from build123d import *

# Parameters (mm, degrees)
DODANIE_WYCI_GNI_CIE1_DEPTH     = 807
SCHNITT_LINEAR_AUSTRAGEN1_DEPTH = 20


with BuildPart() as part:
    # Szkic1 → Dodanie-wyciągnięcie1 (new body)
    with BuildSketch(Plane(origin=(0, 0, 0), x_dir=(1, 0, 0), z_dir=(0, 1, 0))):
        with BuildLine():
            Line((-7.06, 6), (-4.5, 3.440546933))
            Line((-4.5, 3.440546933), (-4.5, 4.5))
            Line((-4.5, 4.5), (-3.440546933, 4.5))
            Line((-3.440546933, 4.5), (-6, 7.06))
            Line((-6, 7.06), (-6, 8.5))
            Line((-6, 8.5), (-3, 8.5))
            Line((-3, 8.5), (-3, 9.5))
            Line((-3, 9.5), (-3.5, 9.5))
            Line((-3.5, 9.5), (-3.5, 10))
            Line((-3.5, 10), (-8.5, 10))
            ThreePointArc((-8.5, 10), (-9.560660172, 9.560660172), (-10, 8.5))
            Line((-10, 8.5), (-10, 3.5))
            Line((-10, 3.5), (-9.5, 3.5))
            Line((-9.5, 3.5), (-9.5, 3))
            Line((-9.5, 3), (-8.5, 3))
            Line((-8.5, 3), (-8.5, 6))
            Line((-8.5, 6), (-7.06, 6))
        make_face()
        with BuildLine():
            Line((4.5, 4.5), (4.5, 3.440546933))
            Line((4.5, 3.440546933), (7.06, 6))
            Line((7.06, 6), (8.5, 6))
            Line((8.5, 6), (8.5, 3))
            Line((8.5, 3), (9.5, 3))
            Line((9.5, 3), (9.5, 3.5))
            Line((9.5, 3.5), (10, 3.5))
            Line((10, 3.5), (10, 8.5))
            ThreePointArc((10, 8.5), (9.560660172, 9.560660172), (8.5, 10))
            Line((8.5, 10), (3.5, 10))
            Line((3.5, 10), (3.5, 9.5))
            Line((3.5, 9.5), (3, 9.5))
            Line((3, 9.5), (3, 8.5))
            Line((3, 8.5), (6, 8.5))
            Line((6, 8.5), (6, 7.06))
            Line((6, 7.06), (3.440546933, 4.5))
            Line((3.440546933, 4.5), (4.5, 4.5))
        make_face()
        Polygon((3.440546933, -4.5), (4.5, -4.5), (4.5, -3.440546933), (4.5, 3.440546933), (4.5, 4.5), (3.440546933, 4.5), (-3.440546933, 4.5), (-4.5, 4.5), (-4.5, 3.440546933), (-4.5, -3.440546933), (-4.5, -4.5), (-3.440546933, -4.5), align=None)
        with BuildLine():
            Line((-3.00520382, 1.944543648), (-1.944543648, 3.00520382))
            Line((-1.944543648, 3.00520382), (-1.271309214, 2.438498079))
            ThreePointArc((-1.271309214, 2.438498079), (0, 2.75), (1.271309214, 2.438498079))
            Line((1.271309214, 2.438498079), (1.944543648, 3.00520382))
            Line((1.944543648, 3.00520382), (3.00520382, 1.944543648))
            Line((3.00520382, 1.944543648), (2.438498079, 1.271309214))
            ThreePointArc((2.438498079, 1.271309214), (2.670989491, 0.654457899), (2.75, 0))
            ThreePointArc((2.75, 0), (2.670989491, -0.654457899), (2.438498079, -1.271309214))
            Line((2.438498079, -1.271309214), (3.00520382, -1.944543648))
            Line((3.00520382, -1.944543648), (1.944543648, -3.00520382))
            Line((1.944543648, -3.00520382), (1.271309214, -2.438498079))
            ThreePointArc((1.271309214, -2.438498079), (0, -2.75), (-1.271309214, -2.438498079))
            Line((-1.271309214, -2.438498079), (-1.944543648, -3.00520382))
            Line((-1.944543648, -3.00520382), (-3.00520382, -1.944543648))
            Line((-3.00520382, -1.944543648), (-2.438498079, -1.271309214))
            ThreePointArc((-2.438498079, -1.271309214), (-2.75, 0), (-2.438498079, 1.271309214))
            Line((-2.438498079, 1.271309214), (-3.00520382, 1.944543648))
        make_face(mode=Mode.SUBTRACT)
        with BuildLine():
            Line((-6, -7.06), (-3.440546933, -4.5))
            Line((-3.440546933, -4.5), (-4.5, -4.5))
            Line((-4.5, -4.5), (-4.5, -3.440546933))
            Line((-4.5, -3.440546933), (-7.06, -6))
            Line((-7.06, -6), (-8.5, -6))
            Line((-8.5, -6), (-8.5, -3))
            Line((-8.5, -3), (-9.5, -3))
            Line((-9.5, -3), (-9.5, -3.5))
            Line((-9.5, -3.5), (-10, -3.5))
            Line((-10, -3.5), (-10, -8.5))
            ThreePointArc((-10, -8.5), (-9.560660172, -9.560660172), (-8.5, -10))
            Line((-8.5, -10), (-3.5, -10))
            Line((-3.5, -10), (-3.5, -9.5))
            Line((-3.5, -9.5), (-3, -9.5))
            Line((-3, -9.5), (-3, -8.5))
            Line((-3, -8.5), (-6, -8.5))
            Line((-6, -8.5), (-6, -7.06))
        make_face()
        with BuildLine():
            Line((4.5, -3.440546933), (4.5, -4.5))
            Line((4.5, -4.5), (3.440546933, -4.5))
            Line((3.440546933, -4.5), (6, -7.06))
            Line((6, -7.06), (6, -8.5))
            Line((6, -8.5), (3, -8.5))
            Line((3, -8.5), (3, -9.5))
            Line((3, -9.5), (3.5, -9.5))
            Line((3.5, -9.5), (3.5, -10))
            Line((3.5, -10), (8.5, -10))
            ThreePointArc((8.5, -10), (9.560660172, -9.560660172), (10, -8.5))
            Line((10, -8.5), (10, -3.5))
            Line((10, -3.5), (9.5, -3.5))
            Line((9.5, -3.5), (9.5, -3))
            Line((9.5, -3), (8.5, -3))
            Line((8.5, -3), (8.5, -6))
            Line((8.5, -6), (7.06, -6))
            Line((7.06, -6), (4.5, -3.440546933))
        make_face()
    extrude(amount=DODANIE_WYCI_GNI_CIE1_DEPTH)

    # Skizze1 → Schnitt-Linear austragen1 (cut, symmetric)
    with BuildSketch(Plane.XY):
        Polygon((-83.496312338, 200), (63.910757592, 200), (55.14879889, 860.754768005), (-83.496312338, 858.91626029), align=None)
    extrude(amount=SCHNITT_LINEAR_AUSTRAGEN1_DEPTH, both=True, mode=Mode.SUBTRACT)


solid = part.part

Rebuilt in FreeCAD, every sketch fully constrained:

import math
import FreeCAD as App
import Part
import Sketcher
Q = App.Units.Quantity

doc = App.newDocument("Part")
body = doc.addObject("PartDesign::Body", "Body")

sketch1 = body.newObject("Sketcher::SketchObject", "Sketch")
sketch1.AttachmentSupport = (doc.getObject("XZ_Plane"), [""])
sketch1.MapMode = "FlatFace"
sketch1.addGeometry([
    Part.LineSegment(App.Vector(-7.1, -6, 0), App.Vector(-4.5, -3.4, 0)),
    Part.LineSegment(App.Vector(-4.5, -3.4, 0), App.Vector(-4.5, 3.4, 0)),
    Part.LineSegment(App.Vector(-4.5, 3.4, 0), App.Vector(-7.1, 6, 0)),
    Part.LineSegment(App.Vector(-7.1, 6, 0), App.Vector(-8.5, 6, 0)),
    Part.LineSegment(App.Vector(-8.5, 6, 0), App.Vector(-8.5, 3, 0)),
    Part.LineSegment(App.Vector(-8.5, 3, 0), App.Vector(-9.5, 3, 0)),
    Part.LineSegment(App.Vector(-9.5, 3, 0), App.Vector(-9.5, 3.5, 0)),
    Part.LineSegment(App.Vector(-9.5, 3.5, 0), App.Vector(-10, 3.5, 0)),
    Part.LineSegment(App.Vector(-10, 3.5, 0), App.Vector(-10, 8.5, 0)),
    Part.ArcOfCircle(Part.Circle(App.Vector(-8.5, 8.5, 0), App.Vector(0, 0, 1), 1.5), math.radians(90), math.radians(180)),
    Part.LineSegment(App.Vector(-8.5, 10, 0), App.Vector(-3.5, 10, 0)),
    Part.LineSegment(App.Vector(-3.5, 10, 0), App.Vector(-3.5, 9.5, 0)),
    Part.LineSegment(App.Vector(-3.5, 9.5, 0), App.Vector(-3, 9.5, 0)),
    Part.LineSegment(App.Vector(-3, 9.5, 0), App.Vector(-3, 8.5, 0)),
    Part.LineSegment(App.Vector(-3, 8.5, 0), App.Vector(-6, 8.5, 0)),
    Part.LineSegment(App.Vector(-6, 8.5, 0), App.Vector(-6, 7.1, 0)),
    Part.LineSegment(App.Vector(-6, 7.1, 0), App.Vector(-3.4, 4.5, 0)),
    Part.LineSegment(App.Vector(-3.4, 4.5, 0), App.Vector(3.4, 4.5, 0)),
    Part.LineSegment(App.Vector(3.4, 4.5, 0), App.Vector(6, 7.1, 0)),
    Part.LineSegment(App.Vector(6, 7.1, 0), App.Vector(6, 8.5, 0)),
    Part.LineSegment(App.Vector(6, 8.5, 0), App.Vector(3, 8.5, 0)),
    Part.LineSegment(App.Vector(3, 8.5, 0), App.Vector(3, 9.5, 0)),
    Part.LineSegment(App.Vector(3, 9.5, 0), App.Vector(3.5, 9.5, 0)),
    Part.LineSegment(App.Vector(3.5, 9.5, 0), App.Vector(3.5, 10, 0)),
    Part.LineSegment(App.Vector(3.5, 10, 0), App.Vector(8.5, 10, 0)),
    Part.ArcOfCircle(Part.Circle(App.Vector(8.5, 8.5, 0), App.Vector(0, 0, 1), 1.5), math.radians(0), math.radians(90)),
    Part.LineSegment(App.Vector(10, 8.5, 0), App.Vector(10, 3.5, 0)),
    Part.LineSegment(App.Vector(10, 3.5, 0), App.Vector(9.5, 3.5, 0)),
    Part.LineSegment(App.Vector(9.5, 3.5, 0), App.Vector(9.5, 3, 0)),
    Part.LineSegment(App.Vector(9.5, 3, 0), App.Vector(8.5, 3, 0)),
    Part.LineSegment(App.Vector(8.5, 3, 0), App.Vector(8.5, 6, 0)),
    Part.LineSegment(App.Vector(8.5, 6, 0), App.Vector(7.1, 6, 0)),
    Part.LineSegment(App.Vector(7.1, 6, 0), App.Vector(4.5, 3.4, 0)),
    Part.LineSegment(App.Vector(4.5, 3.4, 0), App.Vector(4.5, -3.4, 0)),
    Part.LineSegment(App.Vector(4.5, -3.4, 0), App.Vector(7.1, -6, 0)),
    Part.LineSegment(App.Vector(7.1, -6, 0), App.Vector(8.5, -6, 0)),
    Part.LineSegment(App.Vector(8.5, -6, 0), App.Vector(8.5, -3, 0)),
    Part.LineSegment(App.Vector(8.5, -3, 0), App.Vector(9.5, -3, 0)),
    Part.LineSegment(App.Vector(9.5, -3, 0), App.Vector(9.5, -3.5, 0)),
    Part.LineSegment(App.Vector(9.5, -3.5, 0), App.Vector(10, -3.5, 0)),
    Part.LineSegment(App.Vector(10, -3.5, 0), App.Vector(10, -8.5, 0)),
    Part.ArcOfCircle(Part.Circle(App.Vector(8.5, -8.5, 0), App.Vector(0, 0, 1), 1.5), math.radians(-90), math.radians(0)),
    Part.LineSegment(App.Vector(8.5, -10, 0), App.Vector(3.5, -10, 0)),
    Part.LineSegment(App.Vector(3.5, -10, 0), App.Vector(3.5, -9.5, 0)),
    Part.LineSegment(App.Vector(3.5, -9.5, 0), App.Vector(3, -9.5, 0)),
    Part.LineSegment(App.Vector(3, -9.5, 0), App.Vector(3, -8.5, 0)),
    Part.LineSegment(App.Vector(3, -8.5, 0), App.Vector(6, -8.5, 0)),
    Part.LineSegment(App.Vector(6, -8.5, 0), App.Vector(6, -7.1, 0)),
    Part.LineSegment(App.Vector(6, -7.1, 0), App.Vector(3.4, -4.5, 0)),
    Part.LineSegment(App.Vector(3.4, -4.5, 0), App.Vector(-3.4, -4.5, 0)),
    Part.LineSegment(App.Vector(-3.4, -4.5, 0), App.Vector(-6, -7.1, 0)),
    Part.LineSegment(App.Vector(-6, -7.1, 0), App.Vector(-6, -8.5, 0)),
    Part.LineSegment(App.Vector(-6, -8.5, 0), App.Vector(-3, -8.5, 0)),
    Part.LineSegment(App.Vector(-3, -8.5, 0), App.Vector(-3, -9.5, 0)),
    Part.LineSegment(App.Vector(-3, -9.5, 0), App.Vector(-3.5, -9.5, 0)),
    Part.LineSegment(App.Vector(-3.5, -9.5, 0), App.Vector(-3.5, -10, 0)),
    Part.LineSegment(App.Vector(-3.5, -10, 0), App.Vector(-8.5, -10, 0)),
    Part.ArcOfCircle(Part.Circle(App.Vector(-8.5, -8.5, 0), App.Vector(0, 0, 1), 1.5), math.radians(180), math.radians(270)),
    Part.LineSegment(App.Vector(-10, -8.5, 0), App.Vector(-10, -3.5, 0)),
    Part.LineSegment(App.Vector(-10, -3.5, 0), App.Vector(-9.5, -3.5, 0)),
    Part.LineSegment(App.Vector(-9.5, -3.5, 0), App.Vector(-9.5, -3, 0)),
    Part.LineSegment(App.Vector(-9.5, -3, 0), App.Vector(-8.5, -3, 0)),
    Part.LineSegment(App.Vector(-8.5, -3, 0), App.Vector(-8.5, -6, 0)),
    Part.LineSegment(App.Vector(-8.5, -6, 0), App.Vector(-7.1, -6, 0)),
    Part.LineSegment(App.Vector(-2.4, -1.3, 0), App.Vector(-3, -1.9, 0)),
    Part.LineSegment(App.Vector(-3, -1.9, 0), App.Vector(-1.9, -3, 0)),
    Part.LineSegment(App.Vector(-1.9, -3, 0), App.Vector(-1.3, -2.4, 0)),
    Part.ArcOfCircle(Part.Circle(App.Vector(0, 0, 0), App.Vector(0, 0, 1), 2.7), math.radians(-118), math.radians(-62)),
    Part.LineSegment(App.Vector(1.3, -2.4, 0), App.Vector(1.9, -3, 0)),
    Part.LineSegment(App.Vector(1.9, -3, 0), App.Vector(3, -1.9, 0)),
    Part.LineSegment(App.Vector(3, -1.9, 0), App.Vector(2.4, -1.3, 0)),
    Part.ArcOfCircle(Part.Circle(App.Vector(0, 0, 0), App.Vector(0, 0, 1), 2.7), math.radians(-28), math.radians(0)),
    Part.ArcOfCircle(Part.Circle(App.Vector(0, 0, 0), App.Vector(0, 0, 1), 2.7), math.radians(0), math.radians(28)),
    Part.LineSegment(App.Vector(2.4, 1.3, 0), App.Vector(3, 1.9, 0)),
    Part.LineSegment(App.Vector(3, 1.9, 0), App.Vector(1.9, 3, 0)),
    Part.LineSegment(App.Vector(1.9, 3, 0), App.Vector(1.3, 2.4, 0)),
    Part.ArcOfCircle(Part.Circle(App.Vector(0, 0, 0), App.Vector(0, 0, 1), 2.7), math.radians(62), math.radians(118)),
    Part.LineSegment(App.Vector(-1.3, 2.4, 0), App.Vector(-1.9, 3, 0)),
    Part.LineSegment(App.Vector(-1.9, 3, 0), App.Vector(-3, 1.9, 0)),
    Part.LineSegment(App.Vector(-3, 1.9, 0), App.Vector(-2.4, 1.3, 0)),
    Part.ArcOfCircle(Part.Circle(App.Vector(0, 0, 0), App.Vector(0, 0, 1), 2.7), math.radians(152), math.radians(208)),
], False)
sketch1.addConstraint([
    Sketcher.Constraint("Coincident", 0, 2, 1, 1),
    Sketcher.Constraint("Coincident", 1, 2, 2, 1),
    Sketcher.Constraint("Coincident", 2, 2, 3, 1),
    Sketcher.Constraint("Coincident", 3, 2, 4, 1),
    Sketcher.Constraint("Coincident", 4, 2, 5, 1),
    Sketcher.Constraint("Coincident", 5, 2, 6, 1),
    Sketcher.Constraint("Coincident", 6, 2, 7, 1),
    Sketcher.Constraint("Coincident", 7, 2, 8, 1),
    Sketcher.Constraint("Tangent", 8, 2, 9, 2),
    Sketcher.Constraint("Tangent", 9, 1, 10, 1),
    Sketcher.Constraint("Coincident", 10, 2, 11, 1),
    Sketcher.Constraint("Coincident", 11, 2, 12, 1),
    Sketcher.Constraint("Coincident", 12, 2, 13, 1),
    Sketcher.Constraint("Coincident", 13, 2, 14, 1),
    Sketcher.Constraint("Coincident", 14, 2, 15, 1),
    Sketcher.Constraint("Coincident", 15, 2, 16, 1),
    Sketcher.Constraint("Coincident", 16, 2, 17, 1),
    Sketcher.Constraint("Coincident", 17, 2, 18, 1),
    Sketcher.Constraint("Coincident", 18, 2, 19, 1),
    Sketcher.Constraint("Coincident", 19, 2, 20, 1),
    Sketcher.Constraint("Coincident", 20, 2, 21, 1),
    Sketcher.Constraint("Coincident", 21, 2, 22, 1),
    Sketcher.Constraint("Coincident", 22, 2, 23, 1),
    Sketcher.Constraint("Coincident", 23, 2, 24, 1),
    Sketcher.Constraint("Tangent", 24, 2, 25, 2),
    Sketcher.Constraint("Tangent", 25, 1, 26, 1),
    Sketcher.Constraint("Coincident", 26, 2, 27, 1),
    Sketcher.Constraint("Coincident", 27, 2, 28, 1),
    Sketcher.Constraint("Coincident", 28, 2, 29, 1),
    Sketcher.Constraint("Coincident", 29, 2, 30, 1),
    Sketcher.Constraint("Coincident", 30, 2, 31, 1),
    Sketcher.Constraint("Coincident", 31, 2, 32, 1),
    Sketcher.Constraint("Coincident", 32, 2, 33, 1),
    Sketcher.Constraint("Coincident", 33, 2, 34, 1),
    Sketcher.Constraint("Coincident", 34, 2, 35, 1),
    Sketcher.Constraint("Coincident", 35, 2, 36, 1),
    Sketcher.Constraint("Coincident", 36, 2, 37, 1),
    Sketcher.Constraint("Coincident", 37, 2, 38, 1),
    Sketcher.Constraint("Coincident", 38, 2, 39, 1),
    Sketcher.Constraint("Coincident", 39, 2, 40, 1),
    Sketcher.Constraint("Tangent", 40, 2, 41, 2),
    Sketcher.Constraint("Tangent", 41, 1, 42, 1),
    Sketcher.Constraint("Coincident", 42, 2, 43, 1),
    Sketcher.Constraint("Coincident", 43, 2, 44, 1),
    Sketcher.Constraint("Coincident", 44, 2, 45, 1),
    Sketcher.Constraint("Coincident", 45, 2, 46, 1),
    Sketcher.Constraint("Coincident", 46, 2, 47, 1),
    Sketcher.Constraint("Coincident", 47, 2, 48, 1),
    Sketcher.Constraint("Coincident", 48, 2, 49, 1),
    Sketcher.Constraint("Coincident", 49, 2, 50, 1),
    Sketcher.Constraint("Coincident", 50, 2, 51, 1),
    Sketcher.Constraint("Coincident", 51, 2, 52, 1),
    Sketcher.Constraint("Coincident", 52, 2, 53, 1),
    Sketcher.Constraint("Coincident", 53, 2, 54, 1),
    Sketcher.Constraint("Coincident", 54, 2, 55, 1),
    Sketcher.Constraint("Coincident", 55, 2, 56, 1),
    Sketcher.Constraint("Tangent", 56, 2, 57, 2),
    Sketcher.Constraint("Tangent", 57, 1, 58, 1),
    Sketcher.Constraint("Coincident", 58, 2, 59, 1),
    Sketcher.Constraint("Coincident", 59, 2, 60, 1),
    Sketcher.Constraint("Coincident", 60, 2, 61, 1),
    Sketcher.Constraint("Coincident", 61, 2, 62, 1),
    Sketcher.Constraint("Coincident", 62, 2, 63, 1),
    Sketcher.Constraint("Coincident", 63, 2, 0, 1),
    Sketcher.Constraint("Coincident", 64, 2, 65, 1),
    Sketcher.Constraint("Coincident", 65, 2, 66, 1),
    Sketcher.Constraint("Coincident", 66, 2, 67, 1),
    Sketcher.Constraint("Coincident", 67, 2, 68, 1),
    Sketcher.Constraint("Coincident", 68, 2, 69, 1),
    Sketcher.Constraint("Coincident", 69, 2, 70, 1),
    Sketcher.Constraint("Coincident", 70, 2, 71, 1),
    Sketcher.Constraint("Tangent", 71, 2, 72, 1),
    Sketcher.Constraint("Coincident", 72, 2, 73, 1),
    Sketcher.Constraint("Coincident", 73, 2, 74, 1),
    Sketcher.Constraint("Coincident", 74, 2, 75, 1),
    Sketcher.Constraint("Coincident", 75, 2, 76, 1),
    Sketcher.Constraint("Coincident", 76, 2, 77, 1),
    Sketcher.Constraint("Coincident", 77, 2, 78, 1),
    Sketcher.Constraint("Coincident", 78, 2, 79, 1),
    Sketcher.Constraint("Coincident", 79, 2, 80, 1),
    Sketcher.Constraint("Coincident", 80, 2, 64, 1),
    Sketcher.Constraint("Vertical", 1),
    Sketcher.Constraint("Horizontal", 3),
    Sketcher.Constraint("Vertical", 4),
    Sketcher.Constraint("Horizontal", 5),
    Sketcher.Constraint("Vertical", 6),
    Sketcher.Constraint("Horizontal", 7),
    Sketcher.Constraint("Vertical", 8),
    Sketcher.Constraint("Horizontal", 10),
    Sketcher.Constraint("Vertical", 11),
    Sketcher.Constraint("Horizontal", 12),
    Sketcher.Constraint("Vertical", 13),
    Sketcher.Constraint("Horizontal", 14),
    Sketcher.Constraint("Vertical", 15),
    Sketcher.Constraint("Horizontal", 17),
    Sketcher.Constraint("Vertical", 19),
    Sketcher.Constraint("Horizontal", 20),
    Sketcher.Constraint("Vertical", 21),
    Sketcher.Constraint("Horizontal", 22),
    Sketcher.Constraint("Vertical", 23),
    Sketcher.Constraint("Horizontal", 24),
    Sketcher.Constraint("Vertical", 26),
    Sketcher.Constraint("Horizontal", 27),
    Sketcher.Constraint("Vertical", 28),
    Sketcher.Constraint("Horizontal", 29),
    Sketcher.Constraint("Vertical", 30),
    Sketcher.Constraint("Horizontal", 31),
    Sketcher.Constraint("Vertical", 33),
    Sketcher.Constraint("Horizontal", 35),
    Sketcher.Constraint("Vertical", 36),
    Sketcher.Constraint("Horizontal", 37),
    Sketcher.Constraint("Vertical", 38),
    Sketcher.Constraint("Horizontal", 39),
    Sketcher.Constraint("Vertical", 40),
    Sketcher.Constraint("Horizontal", 42),
    Sketcher.Constraint("Vertical", 43),
    Sketcher.Constraint("Horizontal", 44),
    Sketcher.Constraint("Vertical", 45),
    Sketcher.Constraint("Horizontal", 46),
    Sketcher.Constraint("Vertical", 47),
    Sketcher.Constraint("Horizontal", 49),
    Sketcher.Constraint("Vertical", 51),
    Sketcher.Constraint("Horizontal", 52),
    Sketcher.Constraint("Vertical", 53),
    Sketcher.Constraint("Horizontal", 54),
    Sketcher.Constraint("Vertical", 55),
    Sketcher.Constraint("Horizontal", 56),
    Sketcher.Constraint("Vertical", 58),
    Sketcher.Constraint("Horizontal", 59),
    Sketcher.Constraint("Vertical", 60),
    Sketcher.Constraint("Horizontal", 61),
    Sketcher.Constraint("Vertical", 62),
    Sketcher.Constraint("Horizontal", 63),
    Sketcher.Constraint("Coincident", 67, 3, -1, 1),
    Sketcher.Constraint("Coincident", 71, 3, -1, 1),
    Sketcher.Constraint("Coincident", 76, 3, -1, 1),
    Sketcher.Constraint("Coincident", 80, 3, -1, 1),
    Sketcher.Constraint("Equal", 9, 25),
    Sketcher.Constraint("Equal", 25, 41),
    Sketcher.Constraint("Equal", 41, 57),
    Sketcher.Constraint("Equal", 67, 71),
    Sketcher.Constraint("Equal", 71, 72),
    Sketcher.Constraint("Equal", 72, 76),
    Sketcher.Constraint("Equal", 76, 80),
    Sketcher.Constraint("Symmetric", 9, 3, 41, 3, -1, 1),
    Sketcher.Constraint("Symmetric", 25, 3, 57, 3, -1, 1),
    Sketcher.Constraint("Symmetric", 0, 2, 32, 2, -1, 1),
    Sketcher.Constraint("Symmetric", 2, 2, 34, 2, -1, 1),
    Sketcher.Constraint("Symmetric", 4, 2, 36, 2, -1, 1),
    Sketcher.Constraint("Symmetric", 6, 2, 38, 2, -1, 1),
    Sketcher.Constraint("Symmetric", 11, 2, 43, 2, -1, 1),
    Sketcher.Constraint("Symmetric", 13, 2, 45, 2, -1, 1),
    Sketcher.Constraint("Symmetric", 15, 2, 47, 2, -1, 1),
    Sketcher.Constraint("Symmetric", 16, 2, 48, 2, -1, 1),
    Sketcher.Constraint("Symmetric", 18, 2, 50, 2, -1, 1),
    Sketcher.Constraint("Symmetric", 20, 2, 52, 2, -1, 1),
    Sketcher.Constraint("Symmetric", 22, 2, 54, 2, -1, 1),
    Sketcher.Constraint("Symmetric", 27, 2, 59, 2, -1, 1),
    Sketcher.Constraint("Symmetric", 29, 2, 61, 2, -1, 1),
    Sketcher.Constraint("Symmetric", 31, 2, 63, 2, -1, 1),
    Sketcher.Constraint("Symmetric", 64, 2, 73, 2, -1, 1),
    Sketcher.Constraint("Symmetric", 65, 2, 74, 2, -1, 1),
    Sketcher.Constraint("Symmetric", 68, 2, 77, 2, -1, 1),
    Sketcher.Constraint("Symmetric", 69, 2, 78, 2, -1, 1),
    Sketcher.Constraint("Symmetric", 9, 3, 25, 3, -2),
    Sketcher.Constraint("Symmetric", 15, 2, 18, 2, -2),
    Sketcher.Constraint("Symmetric", 13, 2, 20, 2, -2),
    Sketcher.Constraint("Symmetric", 11, 2, 22, 2, -2),
    Sketcher.Constraint("Symmetric", 6, 2, 27, 2, -2),
    Sketcher.Constraint("Symmetric", 4, 2, 29, 2, -2),
    Sketcher.Constraint("Symmetric", 2, 2, 31, 2, -2),
    Sketcher.Constraint("Symmetric", 65, 2, 68, 2, -2),
    Sketcher.Constraint("Symmetric", 64, 2, 69, 2, -2),
    Sketcher.Constraint("PointOnObject", 71, 2, -1),
    Sketcher.Constraint("Perpendicular", 0, 16),
    Sketcher.Constraint("Perpendicular", 2, 18),
    Sketcher.Constraint("Perpendicular", 18, 34),
    Sketcher.Constraint("Perpendicular", 34, 50),
    Sketcher.Constraint("Perpendicular", 64, 68),
    Sketcher.Constraint("Perpendicular", 65, 69),
    Sketcher.Constraint("Perpendicular", 66, 70),
    Sketcher.Constraint("Perpendicular", 68, 73),
    Sketcher.Constraint("Perpendicular", 70, 75),
    Sketcher.Constraint("Perpendicular", 73, 77),
    Sketcher.Constraint("Perpendicular", 75, 79),
    Sketcher.Constraint("Horizontal", 8, 2, 13, 2),
    Sketcher.Constraint("Horizontal", 1, 2, 32, 2),
    Sketcher.Constraint("Horizontal", 66, 2, 67, 2),
    Sketcher.Constraint("Vertical", 57, 3, 3, 2),
    Sketcher.Constraint("Equal", 7, 12),
    Sketcher.Constraint("Equal", 49, 1),
    Sketcher.Constraint("Equal", 52, 4),
    Sketcher.Constraint("Equal", 59, 6),
    Sketcher.Constraint("Equal", 56, 8),
    Sketcher.Constraint("Equal", 6, 11),
    Sketcher.Constraint("Equal", 63, 15),
    Sketcher.Constraint("Equal", 2, 16),
    Sketcher.Constraint("Equal", 64, 66),
    Sketcher.Constraint("Radius", 9, Q("1.5 mm")),
    Sketcher.Constraint("DistanceX", 5, 2, 5, 1, Q("1 mm")),
    Sketcher.Constraint("DistanceX", 10, 1, 10, 2, Q("5 mm")),
    Sketcher.Constraint("DistanceX", 14, 2, 14, 1, Q("3 mm")),
    Sketcher.Constraint("Radius", 67, Q("2.75 mm")),
    Sketcher.Constraint("DistanceY", -1, 1, 2, 2, Q("6 mm")),
    Sketcher.Constraint("Distance", 65, Q("1.5 mm")),
    Sketcher.Constraint("DistanceX", 3, 2, 3, 1, Q("1.44 mm")),
    Sketcher.Constraint("DistanceX", 0, 2, -1, 1, Q("4.5 mm")),
    Sketcher.Constraint("Distance", 0, Q("3.62 mm")),
    Sketcher.Constraint("Distance", 64, Q("0.88 mm")),
    Sketcher.Constraint("DistanceY", 66, 2, -1, 1, Q("2.438498 mm")),
])
pad1 = body.newObject("PartDesign::Pad", "Pad")
pad1.Profile = sketch1
pad1.Length = 807
pad1.Reversed = True

sketch2 = body.newObject("Sketcher::SketchObject", "Sketch001")
sketch2.AttachmentSupport = (doc.getObject("XY_Plane"), [""])
sketch2.MapMode = "FlatFace"
sketch2.addGeometry([
    Part.LineSegment(App.Vector(-83, 200, 0), App.Vector(64, 200, 0)),
    Part.LineSegment(App.Vector(64, 200, 0), App.Vector(55, 861, 0)),
    Part.LineSegment(App.Vector(55, 861, 0), App.Vector(-83, 859, 0)),
    Part.LineSegment(App.Vector(-83, 859, 0), App.Vector(-83, 200, 0)),
], False)
sketch2.addConstraint([
    Sketcher.Constraint("Coincident", 0, 2, 1, 1),
    Sketcher.Constraint("Coincident", 1, 2, 2, 1),
    Sketcher.Constraint("Coincident", 2, 2, 3, 1),
    Sketcher.Constraint("Coincident", 3, 2, 0, 1),
    Sketcher.Constraint("Horizontal", 0),
    Sketcher.Constraint("Vertical", 3),
    Sketcher.Constraint("Perpendicular", 1, 2),
    Sketcher.Constraint("DistanceY", -1, 1, 0, 2, Q("200 mm")),
    Sketcher.Constraint("Distance", 2, Q("138.6573 mm")),
    Sketcher.Constraint("DistanceX", 0, 1, 0, 2, Q("147.40707 mm")),
    Sketcher.Constraint("DistanceY", 3, 2, 3, 1, Q("658.91626 mm")),
    Sketcher.Constraint("DistanceX", -1, 1, 1, 2, Q("55.148799 mm")),
])
pocket1 = body.newObject("PartDesign::Pocket", "Pocket")
pocket1.Profile = sketch2
pocket1.Length = 40
pocket1.Midplane = True

doc.recompute()
